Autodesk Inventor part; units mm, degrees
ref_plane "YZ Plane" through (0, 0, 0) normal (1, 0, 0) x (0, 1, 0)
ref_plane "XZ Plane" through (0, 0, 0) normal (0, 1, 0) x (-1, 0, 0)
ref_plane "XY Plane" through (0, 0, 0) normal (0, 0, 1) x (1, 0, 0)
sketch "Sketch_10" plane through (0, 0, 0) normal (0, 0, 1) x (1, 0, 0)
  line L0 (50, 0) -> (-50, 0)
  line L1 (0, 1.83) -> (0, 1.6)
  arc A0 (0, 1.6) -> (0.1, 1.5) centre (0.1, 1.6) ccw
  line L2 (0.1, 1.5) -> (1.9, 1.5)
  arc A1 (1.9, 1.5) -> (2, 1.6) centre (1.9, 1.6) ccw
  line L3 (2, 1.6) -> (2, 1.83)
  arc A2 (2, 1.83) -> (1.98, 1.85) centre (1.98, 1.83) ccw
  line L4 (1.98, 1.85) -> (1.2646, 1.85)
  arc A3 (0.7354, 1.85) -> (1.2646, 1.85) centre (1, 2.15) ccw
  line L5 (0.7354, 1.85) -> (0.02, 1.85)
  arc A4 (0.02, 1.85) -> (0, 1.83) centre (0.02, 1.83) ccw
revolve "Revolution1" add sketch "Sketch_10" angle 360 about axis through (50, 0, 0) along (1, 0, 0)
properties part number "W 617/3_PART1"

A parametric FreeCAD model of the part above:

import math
import FreeCAD as App
import Part
import Sketcher

V = App.Vector
Q = App.Units.Quantity

doc = App.newDocument("Part")
body = doc.addObject("PartDesign::Body", "Body")

# Sketch on XY plane
sketch1 = body.newObject("Sketcher::SketchObject", "Sketch")
sketch1.AttachmentSupport = (doc.getObject("XY_Plane"), [""])
sketch1.MapMode = "FlatFace"
sketch1.addGeometry(Part.ArcOfCircle(Part.Circle(V(0.02, 1.83, 0), V(0, 0, 1), 0.02), math.radians(90), math.radians(180)), False)
sketch1.addGeometry(Part.LineSegment(V(0, 1.83, 0), V(0, 1.6, 0)), False)
sketch1.addGeometry(Part.ArcOfCircle(Part.Circle(V(0.1, 1.6, 0), V(0, 0, 1), 0.1), math.radians(180), math.radians(270)), False)
sketch1.addGeometry(Part.LineSegment(V(0.1, 1.5, 0), V(1.9, 1.5, 0)), False)
sketch1.addGeometry(Part.ArcOfCircle(Part.Circle(V(1.9, 1.6, 0), V(0, 0, 1), 0.1), math.radians(-90), math.radians(0)), False)
sketch1.addGeometry(Part.LineSegment(V(2, 1.6, 0), V(2, 1.83, 0)), False)
sketch1.addGeometry(Part.ArcOfCircle(Part.Circle(V(1.98, 1.83, 0), V(0, 0, 1), 0.02), math.radians(0), math.radians(90)), False)
sketch1.addGeometry(Part.LineSegment(V(1.98, 1.85, 0), V(1.265, 1.85, 0)), False)
sketch1.addGeometry(Part.ArcOfCircle(Part.Circle(V(1, 2.15, 0), V(0, 0, 1), 0.4), math.radians(-131), math.radians(-49)), False)
sketch1.addGeometry(Part.LineSegment(V(0.735, 1.85, 0), V(0.02, 1.85, 0)), False)
sketch1.addConstraint(Sketcher.Constraint("Tangent", 0, 2, 1, 1))
sketch1.addConstraint(Sketcher.Constraint("Tangent", 1, 2, 2, 1))
sketch1.addConstraint(Sketcher.Constraint("Tangent", 2, 2, 3, 1))
sketch1.addConstraint(Sketcher.Constraint("Tangent", 3, 2, 4, 1))
sketch1.addConstraint(Sketcher.Constraint("Tangent", 4, 2, 5, 1))
sketch1.addConstraint(Sketcher.Constraint("Tangent", 5, 2, 6, 1))
sketch1.addConstraint(Sketcher.Constraint("Tangent", 6, 2, 7, 1))
sketch1.addConstraint(Sketcher.Constraint("Coincident", 7, 2, 8, 2))
sketch1.addConstraint(Sketcher.Constraint("Coincident", 8, 1, 9, 1))
sketch1.addConstraint(Sketcher.Constraint("Tangent", 9, 2, 0, 1))
sketch1.addConstraint(Sketcher.Constraint("Vertical", 1))
sketch1.addConstraint(Sketcher.Constraint("Horizontal", 3))
sketch1.addConstraint(Sketcher.Constraint("Vertical", 5))
sketch1.addConstraint(Sketcher.Constraint("Horizontal", 7))
sketch1.addConstraint(Sketcher.Constraint("Horizontal", 9))
sketch1.addConstraint(Sketcher.Constraint("Equal", 2, 4))
sketch1.addConstraint(Sketcher.Constraint("Equal", 0, 6))
sketch1.addConstraint(Sketcher.Constraint("PointOnObject", 0, 2, -2))
sketch1.addConstraint(Sketcher.Constraint("Horizontal", 0, 3, 6, 3))
sketch1.addConstraint(Sketcher.Constraint("Equal", 7, 9))
sketch1.addConstraint(Sketcher.Constraint("Radius", 2, Q("0.1 mm")))
sketch1.addConstraint(Sketcher.Constraint("Radius", 8, Q("0.4 mm")))
sketch1.addConstraint(Sketcher.Constraint("Radius", 0, Q("0.02 mm")))
sketch1.addConstraint(Sketcher.Constraint("DistanceX", 3, 1, 3, 2, Q("1.8 mm")))
sketch1.addConstraint(Sketcher.Constraint("DistanceY", 1, 2, 1, 1, Q("0.23 mm")))
sketch1.addConstraint(Sketcher.Constraint("DistanceY", -1, 1, 2, 3, Q("1.6 mm")))
sketch1.addConstraint(Sketcher.Constraint("DistanceY", 7, 2, 8, 3, Q("0.3 mm")))
revolution = body.newObject("PartDesign::Revolution", "Revolution")
revolution.Profile = sketch1
revolution.ReferenceAxis = (sketch1, ["H_Axis"])
revolution.Angle = 360

doc.recompute()
